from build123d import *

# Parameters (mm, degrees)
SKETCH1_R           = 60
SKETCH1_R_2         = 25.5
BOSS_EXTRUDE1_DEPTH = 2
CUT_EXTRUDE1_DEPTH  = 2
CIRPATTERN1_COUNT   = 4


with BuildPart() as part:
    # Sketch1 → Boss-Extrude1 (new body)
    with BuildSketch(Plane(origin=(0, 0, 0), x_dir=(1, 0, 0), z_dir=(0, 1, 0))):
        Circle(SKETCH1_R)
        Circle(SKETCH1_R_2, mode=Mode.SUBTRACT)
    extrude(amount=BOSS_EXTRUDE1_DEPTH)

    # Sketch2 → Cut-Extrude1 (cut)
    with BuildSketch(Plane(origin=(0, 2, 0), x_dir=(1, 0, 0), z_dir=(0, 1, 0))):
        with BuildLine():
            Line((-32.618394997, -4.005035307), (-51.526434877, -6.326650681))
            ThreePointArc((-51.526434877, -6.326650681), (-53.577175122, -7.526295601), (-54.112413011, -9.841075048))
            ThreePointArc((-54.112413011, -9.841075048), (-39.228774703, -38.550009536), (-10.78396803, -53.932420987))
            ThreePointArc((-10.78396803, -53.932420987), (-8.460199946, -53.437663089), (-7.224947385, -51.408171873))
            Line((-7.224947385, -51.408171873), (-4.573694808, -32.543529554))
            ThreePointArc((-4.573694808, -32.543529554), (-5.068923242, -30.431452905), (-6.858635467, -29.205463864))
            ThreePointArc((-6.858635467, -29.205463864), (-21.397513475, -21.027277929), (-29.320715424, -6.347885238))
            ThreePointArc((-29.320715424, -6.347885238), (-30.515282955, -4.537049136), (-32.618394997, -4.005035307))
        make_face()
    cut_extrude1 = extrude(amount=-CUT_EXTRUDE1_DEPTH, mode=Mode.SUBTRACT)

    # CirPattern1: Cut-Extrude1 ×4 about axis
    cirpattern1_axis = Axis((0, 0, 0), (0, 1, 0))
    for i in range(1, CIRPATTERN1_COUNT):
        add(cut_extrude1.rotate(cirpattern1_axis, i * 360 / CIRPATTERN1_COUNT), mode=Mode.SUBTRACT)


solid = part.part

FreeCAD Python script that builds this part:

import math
import FreeCAD as App
import Part
import Sketcher
Q = App.Units.Quantity

doc = App.newDocument("Part")
body = doc.addObject("PartDesign::Body", "Body")

# Sketch on XZ plane
sketch1 = body.newObject("Sketcher::SketchObject", "Sketch")
sketch1.AttachmentSupport = (doc.getObject("XZ_Plane"), [""])
sketch1.MapMode = "FlatFace"
sketch1.addGeometry([
    Part.Circle(App.Vector(0, 0, 0), App.Vector(0, 0, 1), 60),
    Part.Circle(App.Vector(0, 0, 0), App.Vector(0, 0, 1), 26),
], False)
sketch1.addConstraint([
    Sketcher.Constraint("Coincident", 0, 3, -1, 1),
    Sketcher.Constraint("Coincident", 1, 3, -1, 1),
    Sketcher.Constraint("Diameter", 0, Q("120 mm")),
    Sketcher.Constraint("Diameter", 1, Q("51 mm")),
])
pad1 = body.newObject("PartDesign::Pad", "Pad")
pad1.Profile = sketch1
pad1.Length = 2
pad1.Reversed = True

# Sketch on XZ plane
sketch2 = body.newObject("Sketcher::SketchObject", "Sketch001")
sketch2.AttachmentSupport = (doc.getObject("XZ_Plane"), [""])
sketch2.MapMode = "FlatFace"
sketch2.AttachmentOffset = App.Placement(App.Vector(0, 0, -2), App.Rotation())
sketch2.addGeometry([
    Part.LineSegment(App.Vector(-32.6, 4, 0), App.Vector(-51.5, 6.3, 0)),  # 0
    Part.ArcOfCircle(Part.Circle(App.Vector(-51.2, 9.3, 0), App.Vector(0, 0, 1), 3), math.radians(170), math.radians(263)),  # 1
    Part.ArcOfCircle(Part.Circle(App.Vector(0, 0, 0), App.Vector(0, 0, 1), 55), math.radians(101), math.radians(170)),  # 2
    Part.ArcOfCircle(Part.Circle(App.Vector(-10.2, 51, 0), App.Vector(0, 0, 1), 3), math.radians(8), math.radians(101)),  # 3
    Part.LineSegment(App.Vector(-7.2, 51.4, 0), App.Vector(-4.6, 32.5, 0)),  # 4
    Part.ArcOfCircle(Part.Circle(App.Vector(-7.5, 32.1, 0), App.Vector(0, 0, 1), 3), math.radians(-77), math.radians(8)),  # 5
    Part.ArcOfCircle(Part.Circle(App.Vector(0, 0, 0), App.Vector(0, 0, 1), 30), math.radians(103), math.radians(168)),  # 6
    Part.ArcOfCircle(Part.Circle(App.Vector(-32.3, 7, 0), App.Vector(0, 0, 1), 3), math.radians(-97), math.radians(-12)),  # 7
], False)
sketch2.addConstraint([
    Sketcher.Constraint("Tangent", 0, 2, 1, 2),
    Sketcher.Constraint("Tangent", 1, 1, 2, 2),
    Sketcher.Constraint("Tangent", 2, 1, 3, 2),
    Sketcher.Constraint("Tangent", 3, 1, 4, 1),
    Sketcher.Constraint("Tangent", 4, 2, 5, 2),
    Sketcher.Constraint("Tangent", 5, 1, 6, 1),
    Sketcher.Constraint("Tangent", 6, 2, 7, 2),
    Sketcher.Constraint("Tangent", 7, 1, 0, 1),
    Sketcher.Constraint("Coincident", 2, 3, -1, 1),
    Sketcher.Constraint("Coincident", 6, 3, -1, 1),
    Sketcher.Constraint("Equal", 1, 3),
    Sketcher.Constraint("Equal", 3, 5),
    Sketcher.Constraint("Equal", 5, 7),
    Sketcher.Constraint("Equal", 0, 4),
    Sketcher.Constraint("Radius", 1, Q("3 mm")),
    Sketcher.Constraint("Radius", 2, Q("55 mm")),
    Sketcher.Constraint("Radius", 6, Q("30 mm")),
    Sketcher.Constraint("Angle", 0, Q("173 deg")),
    Sketcher.Constraint("Angle", 4, Q("-82 deg")),
    Sketcher.Constraint("DistanceX", 5, 3, -1, 1, Q("7.544499 mm")),
])
pocket1 = body.newObject("PartDesign::Pocket", "Pocket")
pocket1.Profile = sketch2
pocket1.Length = 2
pocket1.Reversed = True
doc.recompute()

polarpattern = body.newObject("PartDesign::PolarPattern", "PolarPattern")
polarpattern.Originals = [pocket1]
polarpattern.Axis = (doc.getObject("Y_Axis"), [""])
polarpattern.Angle = 360
polarpattern.Occurrences = 4
body.Tip = polarpattern

doc.recompute()
